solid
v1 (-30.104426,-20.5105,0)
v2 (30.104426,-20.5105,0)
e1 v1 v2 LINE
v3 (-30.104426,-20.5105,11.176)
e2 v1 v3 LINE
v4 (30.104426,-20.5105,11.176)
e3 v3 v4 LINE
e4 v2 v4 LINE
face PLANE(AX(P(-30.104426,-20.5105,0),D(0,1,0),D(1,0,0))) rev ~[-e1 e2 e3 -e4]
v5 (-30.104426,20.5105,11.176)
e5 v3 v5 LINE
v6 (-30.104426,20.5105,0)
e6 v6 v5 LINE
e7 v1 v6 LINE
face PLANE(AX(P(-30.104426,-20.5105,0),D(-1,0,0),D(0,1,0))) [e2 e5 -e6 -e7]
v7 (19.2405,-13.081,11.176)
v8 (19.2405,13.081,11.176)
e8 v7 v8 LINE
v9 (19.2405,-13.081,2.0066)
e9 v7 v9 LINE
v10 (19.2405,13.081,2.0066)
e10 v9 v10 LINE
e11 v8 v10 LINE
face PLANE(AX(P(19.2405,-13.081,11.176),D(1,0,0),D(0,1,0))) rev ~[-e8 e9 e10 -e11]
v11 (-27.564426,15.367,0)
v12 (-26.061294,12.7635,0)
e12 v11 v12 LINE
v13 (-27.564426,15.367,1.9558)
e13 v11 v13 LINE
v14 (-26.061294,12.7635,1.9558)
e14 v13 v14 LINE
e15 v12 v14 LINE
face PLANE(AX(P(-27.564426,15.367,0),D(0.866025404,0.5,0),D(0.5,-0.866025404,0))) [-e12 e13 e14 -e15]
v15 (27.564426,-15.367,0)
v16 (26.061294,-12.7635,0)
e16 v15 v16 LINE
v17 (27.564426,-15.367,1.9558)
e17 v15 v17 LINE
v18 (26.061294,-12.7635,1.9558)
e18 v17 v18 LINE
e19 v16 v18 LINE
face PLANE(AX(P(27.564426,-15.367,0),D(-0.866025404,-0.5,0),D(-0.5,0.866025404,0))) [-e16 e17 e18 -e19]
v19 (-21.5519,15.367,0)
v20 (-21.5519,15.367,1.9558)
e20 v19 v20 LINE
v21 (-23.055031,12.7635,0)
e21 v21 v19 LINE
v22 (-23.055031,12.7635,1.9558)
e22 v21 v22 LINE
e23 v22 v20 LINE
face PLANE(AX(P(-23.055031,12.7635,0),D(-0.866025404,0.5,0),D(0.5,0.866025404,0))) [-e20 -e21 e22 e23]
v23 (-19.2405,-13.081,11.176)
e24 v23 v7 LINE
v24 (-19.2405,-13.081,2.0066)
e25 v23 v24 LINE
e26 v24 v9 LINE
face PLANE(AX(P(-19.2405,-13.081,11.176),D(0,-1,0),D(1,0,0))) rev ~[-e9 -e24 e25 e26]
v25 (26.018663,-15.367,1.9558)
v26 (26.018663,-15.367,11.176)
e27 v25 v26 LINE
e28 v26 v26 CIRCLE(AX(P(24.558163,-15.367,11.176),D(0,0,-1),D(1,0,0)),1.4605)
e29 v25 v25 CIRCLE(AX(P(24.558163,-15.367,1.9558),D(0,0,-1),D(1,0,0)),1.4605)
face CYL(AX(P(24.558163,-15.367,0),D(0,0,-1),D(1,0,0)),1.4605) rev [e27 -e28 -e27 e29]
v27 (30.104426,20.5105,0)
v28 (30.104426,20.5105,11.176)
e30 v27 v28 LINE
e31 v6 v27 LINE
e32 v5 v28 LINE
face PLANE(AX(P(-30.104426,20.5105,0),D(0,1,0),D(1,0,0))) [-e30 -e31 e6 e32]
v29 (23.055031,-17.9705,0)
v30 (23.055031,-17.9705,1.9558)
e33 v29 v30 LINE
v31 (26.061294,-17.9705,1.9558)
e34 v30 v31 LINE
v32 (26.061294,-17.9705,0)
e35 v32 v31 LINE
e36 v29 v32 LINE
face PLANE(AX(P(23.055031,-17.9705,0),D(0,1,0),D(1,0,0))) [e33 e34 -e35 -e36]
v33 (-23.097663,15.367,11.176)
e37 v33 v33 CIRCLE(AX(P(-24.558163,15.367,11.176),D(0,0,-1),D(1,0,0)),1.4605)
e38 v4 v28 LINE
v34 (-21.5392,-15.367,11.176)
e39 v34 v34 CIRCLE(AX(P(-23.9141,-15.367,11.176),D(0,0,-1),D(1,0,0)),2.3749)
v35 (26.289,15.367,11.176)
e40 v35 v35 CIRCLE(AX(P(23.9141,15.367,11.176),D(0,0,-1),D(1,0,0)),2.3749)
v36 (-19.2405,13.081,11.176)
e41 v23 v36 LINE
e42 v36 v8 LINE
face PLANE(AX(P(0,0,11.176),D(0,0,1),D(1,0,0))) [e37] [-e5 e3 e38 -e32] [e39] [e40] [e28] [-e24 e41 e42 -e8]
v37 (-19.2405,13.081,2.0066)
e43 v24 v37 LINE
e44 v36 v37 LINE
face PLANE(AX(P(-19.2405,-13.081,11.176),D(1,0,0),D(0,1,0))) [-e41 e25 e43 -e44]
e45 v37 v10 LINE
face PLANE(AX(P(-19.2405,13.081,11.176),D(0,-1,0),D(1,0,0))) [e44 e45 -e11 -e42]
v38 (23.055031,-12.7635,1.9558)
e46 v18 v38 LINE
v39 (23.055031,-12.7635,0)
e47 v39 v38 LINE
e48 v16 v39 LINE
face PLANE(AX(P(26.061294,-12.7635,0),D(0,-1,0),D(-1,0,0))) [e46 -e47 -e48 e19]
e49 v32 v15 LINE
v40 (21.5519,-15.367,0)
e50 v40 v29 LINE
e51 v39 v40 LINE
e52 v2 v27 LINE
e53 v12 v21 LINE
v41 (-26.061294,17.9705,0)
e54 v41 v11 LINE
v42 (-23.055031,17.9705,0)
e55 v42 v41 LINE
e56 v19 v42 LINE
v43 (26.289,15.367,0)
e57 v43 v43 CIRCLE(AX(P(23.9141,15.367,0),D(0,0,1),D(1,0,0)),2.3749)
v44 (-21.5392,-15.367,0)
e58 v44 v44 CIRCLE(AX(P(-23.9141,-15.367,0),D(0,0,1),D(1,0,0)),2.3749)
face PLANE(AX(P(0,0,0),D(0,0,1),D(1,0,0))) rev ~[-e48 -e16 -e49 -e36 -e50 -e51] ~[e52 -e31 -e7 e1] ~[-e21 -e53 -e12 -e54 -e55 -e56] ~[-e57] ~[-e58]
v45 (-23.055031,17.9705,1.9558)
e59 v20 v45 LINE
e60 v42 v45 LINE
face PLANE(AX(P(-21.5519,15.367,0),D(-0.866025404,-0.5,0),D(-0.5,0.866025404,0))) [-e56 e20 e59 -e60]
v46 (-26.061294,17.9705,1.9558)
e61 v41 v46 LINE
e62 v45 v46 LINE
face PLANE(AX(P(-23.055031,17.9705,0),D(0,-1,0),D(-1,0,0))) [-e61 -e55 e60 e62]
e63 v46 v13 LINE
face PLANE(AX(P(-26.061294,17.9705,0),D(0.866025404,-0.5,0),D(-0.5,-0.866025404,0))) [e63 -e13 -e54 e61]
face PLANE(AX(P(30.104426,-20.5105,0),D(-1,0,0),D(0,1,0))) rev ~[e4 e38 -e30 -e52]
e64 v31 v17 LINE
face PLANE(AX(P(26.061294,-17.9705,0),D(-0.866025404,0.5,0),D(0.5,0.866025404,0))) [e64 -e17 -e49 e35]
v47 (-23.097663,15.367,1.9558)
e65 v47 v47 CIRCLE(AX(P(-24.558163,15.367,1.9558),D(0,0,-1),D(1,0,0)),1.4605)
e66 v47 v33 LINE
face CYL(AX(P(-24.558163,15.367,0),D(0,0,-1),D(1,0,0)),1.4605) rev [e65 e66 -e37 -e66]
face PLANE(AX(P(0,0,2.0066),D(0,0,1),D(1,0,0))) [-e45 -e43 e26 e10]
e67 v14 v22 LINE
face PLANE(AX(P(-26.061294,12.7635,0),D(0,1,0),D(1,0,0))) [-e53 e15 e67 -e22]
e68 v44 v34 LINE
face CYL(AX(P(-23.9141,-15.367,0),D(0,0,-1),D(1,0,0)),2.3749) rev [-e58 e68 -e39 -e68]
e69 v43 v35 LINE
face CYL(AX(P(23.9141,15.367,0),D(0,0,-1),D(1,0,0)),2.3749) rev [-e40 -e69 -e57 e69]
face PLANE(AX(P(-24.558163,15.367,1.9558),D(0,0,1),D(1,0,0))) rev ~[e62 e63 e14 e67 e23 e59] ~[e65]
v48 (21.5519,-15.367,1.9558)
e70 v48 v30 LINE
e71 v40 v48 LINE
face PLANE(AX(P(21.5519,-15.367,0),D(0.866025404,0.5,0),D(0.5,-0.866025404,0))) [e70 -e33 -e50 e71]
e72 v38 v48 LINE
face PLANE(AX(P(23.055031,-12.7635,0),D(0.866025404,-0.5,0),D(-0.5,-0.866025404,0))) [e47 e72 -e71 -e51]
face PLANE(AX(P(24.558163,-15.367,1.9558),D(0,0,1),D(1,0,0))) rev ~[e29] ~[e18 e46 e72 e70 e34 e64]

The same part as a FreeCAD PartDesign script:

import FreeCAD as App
import Part
import Sketcher
Q = App.Units.Quantity

doc = App.newDocument("Part")
body = doc.addObject("PartDesign::Body", "Body")

# Sketch on XY plane
sketch1 = body.newObject("Sketcher::SketchObject", "Sketch")
sketch1.AttachmentSupport = (doc.getObject("XY_Plane"), [""])
sketch1.MapMode = "FlatFace"
sketch1.addGeometry(Part.LineSegment(App.Vector(-30.104426, 20.5105, 0), App.Vector(-30.104426, -20.5105, 0)), False)
sketch1.addGeometry(Part.LineSegment(App.Vector(-30.104426, -20.5105, 0), App.Vector(30.104426, -20.5105, 0)), False)
sketch1.addGeometry(Part.LineSegment(App.Vector(30.104426, -20.5105, 0), App.Vector(30.104426, 20.5105, 0)), False)
sketch1.addGeometry(Part.LineSegment(App.Vector(30.104426, 20.5105, 0), App.Vector(-30.104426, 20.5105, 0)), False)
sketch1.addConstraint(Sketcher.Constraint("Coincident", 0, 2, 1, 1))
sketch1.addConstraint(Sketcher.Constraint("Coincident", 1, 2, 2, 1))
sketch1.addConstraint(Sketcher.Constraint("Coincident", 2, 2, 3, 1))
sketch1.addConstraint(Sketcher.Constraint("Coincident", 3, 2, 0, 1))
sketch1.addConstraint(Sketcher.Constraint("Vertical", 0))
sketch1.addConstraint(Sketcher.Constraint("Horizontal", 1))
sketch1.addConstraint(Sketcher.Constraint("Vertical", 2))
sketch1.addConstraint(Sketcher.Constraint("Horizontal", 3))
sketch1.addConstraint(Sketcher.Constraint("Symmetric", 0, 2, 2, 2, -1, 1))
sketch1.addConstraint(Sketcher.Constraint("DistanceY", 0, 2, 0, 1, Q("1.615 in")))
sketch1.addConstraint(Sketcher.Constraint("DistanceX", 1, 1, 1, 2, 60.208851))
pad1 = body.newObject("PartDesign::Pad", "Pad")
pad1.Profile = sketch1
pad1.Length = Q("0.44 in")

# Sketch on XY plane
sketch2 = body.newObject("Sketcher::SketchObject", "Sketch001")
sketch2.AttachmentSupport = (doc.getObject("XY_Plane"), [""])
sketch2.MapMode = "FlatFace"
sketch2.addGeometry(Part.Circle(App.Vector(-23.9141, -15.367, 0), App.Vector(0, 0, 1), 2.3749), False)
sketch2.addGeometry(Part.Circle(App.Vector(23.9141, 15.367, 0), App.Vector(0, 0, 1), 2.3749), False)
sketch2.addConstraint(Sketcher.Constraint("Equal", 0, 1))
sketch2.addConstraint(Sketcher.Constraint("Symmetric", 0, 3, 1, 3, -1, 1))
sketch2.addConstraint(Sketcher.Constraint("Diameter", 0, Q("0.187 in")))
sketch2.addConstraint(Sketcher.Constraint("DistanceY", 0, 3, 1, 3, Q("1.21 in")))
sketch2.addConstraint(Sketcher.Constraint("DistanceX", 0, 3, 1, 3, Q("1.883 in")))
pocket1 = body.newObject("PartDesign::Pocket", "Pocket")
pocket1.Profile = sketch2
pocket1.Length = Q("0.48 in")
pocket1.Reversed = True

# Sketch on XY plane
sketch3 = body.newObject("Sketcher::SketchObject", "Sketch002")
sketch3.AttachmentSupport = (doc.getObject("XY_Plane"), [""])
sketch3.MapMode = "FlatFace"
sketch3.AttachmentOffset = App.Placement(App.Vector(0, 0, 0.44 * 25.4), App.Rotation())
sketch3.addGeometry(Part.LineSegment(App.Vector(-19.2405, 13.081, 0), App.Vector(-19.2405, -13.081, 0)), False)
sketch3.addGeometry(Part.LineSegment(App.Vector(-19.2405, -13.081, 0), App.Vector(19.2405, -13.081, 0)), False)
sketch3.addGeometry(Part.LineSegment(App.Vector(19.2405, -13.081, 0), App.Vector(19.2405, 13.081, 0)), False)
sketch3.addGeometry(Part.LineSegment(App.Vector(19.2405, 13.081, 0), App.Vector(-19.2405, 13.081, 0)), False)
sketch3.addConstraint(Sketcher.Constraint("Coincident", 0, 2, 1, 1))
sketch3.addConstraint(Sketcher.Constraint("Coincident", 1, 2, 2, 1))
sketch3.addConstraint(Sketcher.Constraint("Coincident", 2, 2, 3, 1))
sketch3.addConstraint(Sketcher.Constraint("Coincident", 3, 2, 0, 1))
sketch3.addConstraint(Sketcher.Constraint("Vertical", 0))
sketch3.addConstraint(Sketcher.Constraint("Horizontal", 1))
sketch3.addConstraint(Sketcher.Constraint("Vertical", 2))
sketch3.addConstraint(Sketcher.Constraint("Horizontal", 3))
sketch3.addConstraint(Sketcher.Constraint("Symmetric", 0, 2, 2, 2, -1, 1))
sketch3.addConstraint(Sketcher.Constraint("DistanceY", 0, 2, 0, 1, Q("1.03 in")))
sketch3.addConstraint(Sketcher.Constraint("DistanceX", 1, 1, 1, 2, Q("1.515 in")))
pocket2 = body.newObject("PartDesign::Pocket", "Pocket001")
pocket2.Profile = sketch3
pocket2.Length = Q("0.361 in")

# Sketch on XY plane
sketch4 = body.newObject("Sketcher::SketchObject", "Sketch003")
sketch4.AttachmentSupport = (doc.getObject("XY_Plane"), [""])
sketch4.MapMode = "FlatFace"
sketch4.addGeometry(Part.LineSegment(App.Vector(-26.061294, 12.7635, 0), App.Vector(-23.055031, 12.7635, 0)), False)
sketch4.addGeometry(Part.LineSegment(App.Vector(-23.055031, 12.7635, 0), App.Vector(-21.5519, 15.367, 0)), False)
sketch4.addGeometry(Part.LineSegment(App.Vector(-21.5519, 15.367, 0), App.Vector(-23.055031, 17.9705, 0)), False)
sketch4.addGeometry(Part.LineSegment(App.Vector(-23.055031, 17.9705, 0), App.Vector(-26.061294, 17.9705, 0)), False)
sketch4.addGeometry(Part.LineSegment(App.Vector(-26.061294, 17.9705, 0), App.Vector(-27.564426, 15.367, 0)), False)
sketch4.addGeometry(Part.LineSegment(App.Vector(-27.564426, 15.367, 0), App.Vector(-26.061294, 12.7635, 0)), False)
sketch4.addConstraint(Sketcher.Constraint("Coincident", 0, 2, 1, 1))
sketch4.addConstraint(Sketcher.Constraint("Coincident", 1, 2, 2, 1))
sketch4.addConstraint(Sketcher.Constraint("Coincident", 2, 2, 3, 1))
sketch4.addConstraint(Sketcher.Constraint("Coincident", 3, 2, 4, 1))
sketch4.addConstraint(Sketcher.Constraint("Coincident", 4, 2, 5, 1))
sketch4.addConstraint(Sketcher.Constraint("Coincident", 5, 2, 0, 1))
sketch4.addConstraint(Sketcher.Constraint("Horizontal", 0))
sketch4.addConstraint(Sketcher.Constraint("Horizontal", 3))
sketch4.addConstraint(Sketcher.Constraint("Parallel", 1, 4))
sketch4.addConstraint(Sketcher.Constraint("Parallel", 2, 5))
sketch4.addConstraint(Sketcher.Constraint("Horizontal", 1, 2, 4, 2))
sketch4.addConstraint(Sketcher.Constraint("Vertical", 0, 2, 2, 2))
sketch4.addConstraint(Sketcher.Constraint("Vertical", 3, 2, 5, 2))
sketch4.addConstraint(Sketcher.Constraint("Angle", 1, Q("60 deg")))
sketch4.addConstraint(Sketcher.Constraint("DistanceY", -1, 1, 1, 2, Q("0.605 in")))
sketch4.addConstraint(Sketcher.Constraint("DistanceY", 0, 2, 2, 2, Q("0.205 in")))
sketch4.addConstraint(Sketcher.Constraint("DistanceX", 1, 2, -1, 1, Q("0.8485 in")))
sketch4.addConstraint(Sketcher.Constraint("DistanceX", 0, 1, 0, 2, 3.006263))
pocket3 = body.newObject("PartDesign::Pocket", "Pocket002")
pocket3.Profile = sketch4
pocket3.Length = Q("0.077 in")
pocket3.Reversed = True

# Sketch on XY plane
sketch5 = body.newObject("Sketcher::SketchObject", "Sketch004")
sketch5.AttachmentSupport = (doc.getObject("XY_Plane"), [""])
sketch5.MapMode = "FlatFace"
sketch5.addGeometry(Part.Circle(App.Vector(-24.558163, 15.367, 0), App.Vector(0, 0, 1), 1.4605), False)
sketch5.addGeometry(Part.Circle(App.Vector(24.558163, -15.367, 0), App.Vector(0, 0, 1), 1.4605), False)
sketch5.addConstraint(Sketcher.Constraint("Equal", 0, 1))
sketch5.addConstraint(Sketcher.Constraint("Symmetric", 0, 3, 1, 3, -1, 1))
sketch5.addConstraint(Sketcher.Constraint("Diameter", 0, Q("0.115 in")))
sketch5.addConstraint(Sketcher.Constraint("DistanceY", 1, 3, 0, 3, Q("1.21 in")))
sketch5.addConstraint(Sketcher.Constraint("DistanceX", 0, 3, -1, 1, 24.558163))
pocket4 = body.newObject("PartDesign::Pocket", "Pocket003")
pocket4.Profile = sketch5
pocket4.Length = Q("0.48 in")
pocket4.Reversed = True

# Sketch on XY plane
sketch6 = body.newObject("Sketcher::SketchObject", "Sketch005")
sketch6.AttachmentSupport = (doc.getObject("XY_Plane"), [""])
sketch6.MapMode = "FlatFace"
sketch6.addGeometry(Part.LineSegment(App.Vector(23.055031, -17.9705, 0), App.Vector(26.061294, -17.9705, 0)), False)
sketch6.addGeometry(Part.LineSegment(App.Vector(26.061294, -17.9705, 0), App.Vector(27.564426, -15.367, 0)), False)
sketch6.addGeometry(Part.LineSegment(App.Vector(27.564426, -15.367, 0), App.Vector(26.061294, -12.7635, 0)), False)
sketch6.addGeometry(Part.LineSegment(App.Vector(26.061294, -12.7635, 0), App.Vector(23.055031, -12.7635, 0)), False)
sketch6.addGeometry(Part.LineSegment(App.Vector(23.055031, -12.7635, 0), App.Vector(21.5519, -15.367, 0)), False)
sketch6.addGeometry(Part.LineSegment(App.Vector(21.5519, -15.367, 0), App.Vector(23.055031, -17.9705, 0)), False)
sketch6.addConstraint(Sketcher.Constraint("Coincident", 0, 2, 1, 1))
sketch6.addConstraint(Sketcher.Constraint("Coincident", 1, 2, 2, 1))
sketch6.addConstraint(Sketcher.Constraint("Coincident", 2, 2, 3, 1))
sketch6.addConstraint(Sketcher.Constraint("Coincident", 3, 2, 4, 1))
sketch6.addConstraint(Sketcher.Constraint("Coincident", 4, 2, 5, 1))
sketch6.addConstraint(Sketcher.Constraint("Coincident", 5, 2, 0, 1))
sketch6.addConstraint(Sketcher.Constraint("Horizontal", 0))
sketch6.addConstraint(Sketcher.Constraint("Horizontal", 3))
sketch6.addConstraint(Sketcher.Constraint("Parallel", 1, 4))
sketch6.addConstraint(Sketcher.Constraint("Parallel", 2, 5))
sketch6.addConstraint(Sketcher.Constraint("Horizontal", 1, 2, 4, 2))
sketch6.addConstraint(Sketcher.Constraint("Vertical", 0, 2, 2, 2))
sketch6.addConstraint(Sketcher.Constraint("Vertical", 3, 2, 5, 2))
sketch6.addConstraint(Sketcher.Constraint("Angle", 1, Q("60 deg")))
sketch6.addConstraint(Sketcher.Constraint("DistanceY", 1, 2, -1, 1, Q("0.605 in")))
sketch6.addConstraint(Sketcher.Constraint("DistanceY", 0, 2, 2, 2, Q("0.205 in")))
sketch6.addConstraint(Sketcher.Constraint("DistanceX", -1, 1, 4, 2, Q("0.8485 in")))
sketch6.addConstraint(Sketcher.Constraint("DistanceX", 0, 1, 0, 2, 3.006263))
pocket5 = body.newObject("PartDesign::Pocket", "Pocket004")
pocket5.Profile = sketch6
pocket5.Length = Q("0.077 in")
pocket5.Reversed = True

doc.recompute()
